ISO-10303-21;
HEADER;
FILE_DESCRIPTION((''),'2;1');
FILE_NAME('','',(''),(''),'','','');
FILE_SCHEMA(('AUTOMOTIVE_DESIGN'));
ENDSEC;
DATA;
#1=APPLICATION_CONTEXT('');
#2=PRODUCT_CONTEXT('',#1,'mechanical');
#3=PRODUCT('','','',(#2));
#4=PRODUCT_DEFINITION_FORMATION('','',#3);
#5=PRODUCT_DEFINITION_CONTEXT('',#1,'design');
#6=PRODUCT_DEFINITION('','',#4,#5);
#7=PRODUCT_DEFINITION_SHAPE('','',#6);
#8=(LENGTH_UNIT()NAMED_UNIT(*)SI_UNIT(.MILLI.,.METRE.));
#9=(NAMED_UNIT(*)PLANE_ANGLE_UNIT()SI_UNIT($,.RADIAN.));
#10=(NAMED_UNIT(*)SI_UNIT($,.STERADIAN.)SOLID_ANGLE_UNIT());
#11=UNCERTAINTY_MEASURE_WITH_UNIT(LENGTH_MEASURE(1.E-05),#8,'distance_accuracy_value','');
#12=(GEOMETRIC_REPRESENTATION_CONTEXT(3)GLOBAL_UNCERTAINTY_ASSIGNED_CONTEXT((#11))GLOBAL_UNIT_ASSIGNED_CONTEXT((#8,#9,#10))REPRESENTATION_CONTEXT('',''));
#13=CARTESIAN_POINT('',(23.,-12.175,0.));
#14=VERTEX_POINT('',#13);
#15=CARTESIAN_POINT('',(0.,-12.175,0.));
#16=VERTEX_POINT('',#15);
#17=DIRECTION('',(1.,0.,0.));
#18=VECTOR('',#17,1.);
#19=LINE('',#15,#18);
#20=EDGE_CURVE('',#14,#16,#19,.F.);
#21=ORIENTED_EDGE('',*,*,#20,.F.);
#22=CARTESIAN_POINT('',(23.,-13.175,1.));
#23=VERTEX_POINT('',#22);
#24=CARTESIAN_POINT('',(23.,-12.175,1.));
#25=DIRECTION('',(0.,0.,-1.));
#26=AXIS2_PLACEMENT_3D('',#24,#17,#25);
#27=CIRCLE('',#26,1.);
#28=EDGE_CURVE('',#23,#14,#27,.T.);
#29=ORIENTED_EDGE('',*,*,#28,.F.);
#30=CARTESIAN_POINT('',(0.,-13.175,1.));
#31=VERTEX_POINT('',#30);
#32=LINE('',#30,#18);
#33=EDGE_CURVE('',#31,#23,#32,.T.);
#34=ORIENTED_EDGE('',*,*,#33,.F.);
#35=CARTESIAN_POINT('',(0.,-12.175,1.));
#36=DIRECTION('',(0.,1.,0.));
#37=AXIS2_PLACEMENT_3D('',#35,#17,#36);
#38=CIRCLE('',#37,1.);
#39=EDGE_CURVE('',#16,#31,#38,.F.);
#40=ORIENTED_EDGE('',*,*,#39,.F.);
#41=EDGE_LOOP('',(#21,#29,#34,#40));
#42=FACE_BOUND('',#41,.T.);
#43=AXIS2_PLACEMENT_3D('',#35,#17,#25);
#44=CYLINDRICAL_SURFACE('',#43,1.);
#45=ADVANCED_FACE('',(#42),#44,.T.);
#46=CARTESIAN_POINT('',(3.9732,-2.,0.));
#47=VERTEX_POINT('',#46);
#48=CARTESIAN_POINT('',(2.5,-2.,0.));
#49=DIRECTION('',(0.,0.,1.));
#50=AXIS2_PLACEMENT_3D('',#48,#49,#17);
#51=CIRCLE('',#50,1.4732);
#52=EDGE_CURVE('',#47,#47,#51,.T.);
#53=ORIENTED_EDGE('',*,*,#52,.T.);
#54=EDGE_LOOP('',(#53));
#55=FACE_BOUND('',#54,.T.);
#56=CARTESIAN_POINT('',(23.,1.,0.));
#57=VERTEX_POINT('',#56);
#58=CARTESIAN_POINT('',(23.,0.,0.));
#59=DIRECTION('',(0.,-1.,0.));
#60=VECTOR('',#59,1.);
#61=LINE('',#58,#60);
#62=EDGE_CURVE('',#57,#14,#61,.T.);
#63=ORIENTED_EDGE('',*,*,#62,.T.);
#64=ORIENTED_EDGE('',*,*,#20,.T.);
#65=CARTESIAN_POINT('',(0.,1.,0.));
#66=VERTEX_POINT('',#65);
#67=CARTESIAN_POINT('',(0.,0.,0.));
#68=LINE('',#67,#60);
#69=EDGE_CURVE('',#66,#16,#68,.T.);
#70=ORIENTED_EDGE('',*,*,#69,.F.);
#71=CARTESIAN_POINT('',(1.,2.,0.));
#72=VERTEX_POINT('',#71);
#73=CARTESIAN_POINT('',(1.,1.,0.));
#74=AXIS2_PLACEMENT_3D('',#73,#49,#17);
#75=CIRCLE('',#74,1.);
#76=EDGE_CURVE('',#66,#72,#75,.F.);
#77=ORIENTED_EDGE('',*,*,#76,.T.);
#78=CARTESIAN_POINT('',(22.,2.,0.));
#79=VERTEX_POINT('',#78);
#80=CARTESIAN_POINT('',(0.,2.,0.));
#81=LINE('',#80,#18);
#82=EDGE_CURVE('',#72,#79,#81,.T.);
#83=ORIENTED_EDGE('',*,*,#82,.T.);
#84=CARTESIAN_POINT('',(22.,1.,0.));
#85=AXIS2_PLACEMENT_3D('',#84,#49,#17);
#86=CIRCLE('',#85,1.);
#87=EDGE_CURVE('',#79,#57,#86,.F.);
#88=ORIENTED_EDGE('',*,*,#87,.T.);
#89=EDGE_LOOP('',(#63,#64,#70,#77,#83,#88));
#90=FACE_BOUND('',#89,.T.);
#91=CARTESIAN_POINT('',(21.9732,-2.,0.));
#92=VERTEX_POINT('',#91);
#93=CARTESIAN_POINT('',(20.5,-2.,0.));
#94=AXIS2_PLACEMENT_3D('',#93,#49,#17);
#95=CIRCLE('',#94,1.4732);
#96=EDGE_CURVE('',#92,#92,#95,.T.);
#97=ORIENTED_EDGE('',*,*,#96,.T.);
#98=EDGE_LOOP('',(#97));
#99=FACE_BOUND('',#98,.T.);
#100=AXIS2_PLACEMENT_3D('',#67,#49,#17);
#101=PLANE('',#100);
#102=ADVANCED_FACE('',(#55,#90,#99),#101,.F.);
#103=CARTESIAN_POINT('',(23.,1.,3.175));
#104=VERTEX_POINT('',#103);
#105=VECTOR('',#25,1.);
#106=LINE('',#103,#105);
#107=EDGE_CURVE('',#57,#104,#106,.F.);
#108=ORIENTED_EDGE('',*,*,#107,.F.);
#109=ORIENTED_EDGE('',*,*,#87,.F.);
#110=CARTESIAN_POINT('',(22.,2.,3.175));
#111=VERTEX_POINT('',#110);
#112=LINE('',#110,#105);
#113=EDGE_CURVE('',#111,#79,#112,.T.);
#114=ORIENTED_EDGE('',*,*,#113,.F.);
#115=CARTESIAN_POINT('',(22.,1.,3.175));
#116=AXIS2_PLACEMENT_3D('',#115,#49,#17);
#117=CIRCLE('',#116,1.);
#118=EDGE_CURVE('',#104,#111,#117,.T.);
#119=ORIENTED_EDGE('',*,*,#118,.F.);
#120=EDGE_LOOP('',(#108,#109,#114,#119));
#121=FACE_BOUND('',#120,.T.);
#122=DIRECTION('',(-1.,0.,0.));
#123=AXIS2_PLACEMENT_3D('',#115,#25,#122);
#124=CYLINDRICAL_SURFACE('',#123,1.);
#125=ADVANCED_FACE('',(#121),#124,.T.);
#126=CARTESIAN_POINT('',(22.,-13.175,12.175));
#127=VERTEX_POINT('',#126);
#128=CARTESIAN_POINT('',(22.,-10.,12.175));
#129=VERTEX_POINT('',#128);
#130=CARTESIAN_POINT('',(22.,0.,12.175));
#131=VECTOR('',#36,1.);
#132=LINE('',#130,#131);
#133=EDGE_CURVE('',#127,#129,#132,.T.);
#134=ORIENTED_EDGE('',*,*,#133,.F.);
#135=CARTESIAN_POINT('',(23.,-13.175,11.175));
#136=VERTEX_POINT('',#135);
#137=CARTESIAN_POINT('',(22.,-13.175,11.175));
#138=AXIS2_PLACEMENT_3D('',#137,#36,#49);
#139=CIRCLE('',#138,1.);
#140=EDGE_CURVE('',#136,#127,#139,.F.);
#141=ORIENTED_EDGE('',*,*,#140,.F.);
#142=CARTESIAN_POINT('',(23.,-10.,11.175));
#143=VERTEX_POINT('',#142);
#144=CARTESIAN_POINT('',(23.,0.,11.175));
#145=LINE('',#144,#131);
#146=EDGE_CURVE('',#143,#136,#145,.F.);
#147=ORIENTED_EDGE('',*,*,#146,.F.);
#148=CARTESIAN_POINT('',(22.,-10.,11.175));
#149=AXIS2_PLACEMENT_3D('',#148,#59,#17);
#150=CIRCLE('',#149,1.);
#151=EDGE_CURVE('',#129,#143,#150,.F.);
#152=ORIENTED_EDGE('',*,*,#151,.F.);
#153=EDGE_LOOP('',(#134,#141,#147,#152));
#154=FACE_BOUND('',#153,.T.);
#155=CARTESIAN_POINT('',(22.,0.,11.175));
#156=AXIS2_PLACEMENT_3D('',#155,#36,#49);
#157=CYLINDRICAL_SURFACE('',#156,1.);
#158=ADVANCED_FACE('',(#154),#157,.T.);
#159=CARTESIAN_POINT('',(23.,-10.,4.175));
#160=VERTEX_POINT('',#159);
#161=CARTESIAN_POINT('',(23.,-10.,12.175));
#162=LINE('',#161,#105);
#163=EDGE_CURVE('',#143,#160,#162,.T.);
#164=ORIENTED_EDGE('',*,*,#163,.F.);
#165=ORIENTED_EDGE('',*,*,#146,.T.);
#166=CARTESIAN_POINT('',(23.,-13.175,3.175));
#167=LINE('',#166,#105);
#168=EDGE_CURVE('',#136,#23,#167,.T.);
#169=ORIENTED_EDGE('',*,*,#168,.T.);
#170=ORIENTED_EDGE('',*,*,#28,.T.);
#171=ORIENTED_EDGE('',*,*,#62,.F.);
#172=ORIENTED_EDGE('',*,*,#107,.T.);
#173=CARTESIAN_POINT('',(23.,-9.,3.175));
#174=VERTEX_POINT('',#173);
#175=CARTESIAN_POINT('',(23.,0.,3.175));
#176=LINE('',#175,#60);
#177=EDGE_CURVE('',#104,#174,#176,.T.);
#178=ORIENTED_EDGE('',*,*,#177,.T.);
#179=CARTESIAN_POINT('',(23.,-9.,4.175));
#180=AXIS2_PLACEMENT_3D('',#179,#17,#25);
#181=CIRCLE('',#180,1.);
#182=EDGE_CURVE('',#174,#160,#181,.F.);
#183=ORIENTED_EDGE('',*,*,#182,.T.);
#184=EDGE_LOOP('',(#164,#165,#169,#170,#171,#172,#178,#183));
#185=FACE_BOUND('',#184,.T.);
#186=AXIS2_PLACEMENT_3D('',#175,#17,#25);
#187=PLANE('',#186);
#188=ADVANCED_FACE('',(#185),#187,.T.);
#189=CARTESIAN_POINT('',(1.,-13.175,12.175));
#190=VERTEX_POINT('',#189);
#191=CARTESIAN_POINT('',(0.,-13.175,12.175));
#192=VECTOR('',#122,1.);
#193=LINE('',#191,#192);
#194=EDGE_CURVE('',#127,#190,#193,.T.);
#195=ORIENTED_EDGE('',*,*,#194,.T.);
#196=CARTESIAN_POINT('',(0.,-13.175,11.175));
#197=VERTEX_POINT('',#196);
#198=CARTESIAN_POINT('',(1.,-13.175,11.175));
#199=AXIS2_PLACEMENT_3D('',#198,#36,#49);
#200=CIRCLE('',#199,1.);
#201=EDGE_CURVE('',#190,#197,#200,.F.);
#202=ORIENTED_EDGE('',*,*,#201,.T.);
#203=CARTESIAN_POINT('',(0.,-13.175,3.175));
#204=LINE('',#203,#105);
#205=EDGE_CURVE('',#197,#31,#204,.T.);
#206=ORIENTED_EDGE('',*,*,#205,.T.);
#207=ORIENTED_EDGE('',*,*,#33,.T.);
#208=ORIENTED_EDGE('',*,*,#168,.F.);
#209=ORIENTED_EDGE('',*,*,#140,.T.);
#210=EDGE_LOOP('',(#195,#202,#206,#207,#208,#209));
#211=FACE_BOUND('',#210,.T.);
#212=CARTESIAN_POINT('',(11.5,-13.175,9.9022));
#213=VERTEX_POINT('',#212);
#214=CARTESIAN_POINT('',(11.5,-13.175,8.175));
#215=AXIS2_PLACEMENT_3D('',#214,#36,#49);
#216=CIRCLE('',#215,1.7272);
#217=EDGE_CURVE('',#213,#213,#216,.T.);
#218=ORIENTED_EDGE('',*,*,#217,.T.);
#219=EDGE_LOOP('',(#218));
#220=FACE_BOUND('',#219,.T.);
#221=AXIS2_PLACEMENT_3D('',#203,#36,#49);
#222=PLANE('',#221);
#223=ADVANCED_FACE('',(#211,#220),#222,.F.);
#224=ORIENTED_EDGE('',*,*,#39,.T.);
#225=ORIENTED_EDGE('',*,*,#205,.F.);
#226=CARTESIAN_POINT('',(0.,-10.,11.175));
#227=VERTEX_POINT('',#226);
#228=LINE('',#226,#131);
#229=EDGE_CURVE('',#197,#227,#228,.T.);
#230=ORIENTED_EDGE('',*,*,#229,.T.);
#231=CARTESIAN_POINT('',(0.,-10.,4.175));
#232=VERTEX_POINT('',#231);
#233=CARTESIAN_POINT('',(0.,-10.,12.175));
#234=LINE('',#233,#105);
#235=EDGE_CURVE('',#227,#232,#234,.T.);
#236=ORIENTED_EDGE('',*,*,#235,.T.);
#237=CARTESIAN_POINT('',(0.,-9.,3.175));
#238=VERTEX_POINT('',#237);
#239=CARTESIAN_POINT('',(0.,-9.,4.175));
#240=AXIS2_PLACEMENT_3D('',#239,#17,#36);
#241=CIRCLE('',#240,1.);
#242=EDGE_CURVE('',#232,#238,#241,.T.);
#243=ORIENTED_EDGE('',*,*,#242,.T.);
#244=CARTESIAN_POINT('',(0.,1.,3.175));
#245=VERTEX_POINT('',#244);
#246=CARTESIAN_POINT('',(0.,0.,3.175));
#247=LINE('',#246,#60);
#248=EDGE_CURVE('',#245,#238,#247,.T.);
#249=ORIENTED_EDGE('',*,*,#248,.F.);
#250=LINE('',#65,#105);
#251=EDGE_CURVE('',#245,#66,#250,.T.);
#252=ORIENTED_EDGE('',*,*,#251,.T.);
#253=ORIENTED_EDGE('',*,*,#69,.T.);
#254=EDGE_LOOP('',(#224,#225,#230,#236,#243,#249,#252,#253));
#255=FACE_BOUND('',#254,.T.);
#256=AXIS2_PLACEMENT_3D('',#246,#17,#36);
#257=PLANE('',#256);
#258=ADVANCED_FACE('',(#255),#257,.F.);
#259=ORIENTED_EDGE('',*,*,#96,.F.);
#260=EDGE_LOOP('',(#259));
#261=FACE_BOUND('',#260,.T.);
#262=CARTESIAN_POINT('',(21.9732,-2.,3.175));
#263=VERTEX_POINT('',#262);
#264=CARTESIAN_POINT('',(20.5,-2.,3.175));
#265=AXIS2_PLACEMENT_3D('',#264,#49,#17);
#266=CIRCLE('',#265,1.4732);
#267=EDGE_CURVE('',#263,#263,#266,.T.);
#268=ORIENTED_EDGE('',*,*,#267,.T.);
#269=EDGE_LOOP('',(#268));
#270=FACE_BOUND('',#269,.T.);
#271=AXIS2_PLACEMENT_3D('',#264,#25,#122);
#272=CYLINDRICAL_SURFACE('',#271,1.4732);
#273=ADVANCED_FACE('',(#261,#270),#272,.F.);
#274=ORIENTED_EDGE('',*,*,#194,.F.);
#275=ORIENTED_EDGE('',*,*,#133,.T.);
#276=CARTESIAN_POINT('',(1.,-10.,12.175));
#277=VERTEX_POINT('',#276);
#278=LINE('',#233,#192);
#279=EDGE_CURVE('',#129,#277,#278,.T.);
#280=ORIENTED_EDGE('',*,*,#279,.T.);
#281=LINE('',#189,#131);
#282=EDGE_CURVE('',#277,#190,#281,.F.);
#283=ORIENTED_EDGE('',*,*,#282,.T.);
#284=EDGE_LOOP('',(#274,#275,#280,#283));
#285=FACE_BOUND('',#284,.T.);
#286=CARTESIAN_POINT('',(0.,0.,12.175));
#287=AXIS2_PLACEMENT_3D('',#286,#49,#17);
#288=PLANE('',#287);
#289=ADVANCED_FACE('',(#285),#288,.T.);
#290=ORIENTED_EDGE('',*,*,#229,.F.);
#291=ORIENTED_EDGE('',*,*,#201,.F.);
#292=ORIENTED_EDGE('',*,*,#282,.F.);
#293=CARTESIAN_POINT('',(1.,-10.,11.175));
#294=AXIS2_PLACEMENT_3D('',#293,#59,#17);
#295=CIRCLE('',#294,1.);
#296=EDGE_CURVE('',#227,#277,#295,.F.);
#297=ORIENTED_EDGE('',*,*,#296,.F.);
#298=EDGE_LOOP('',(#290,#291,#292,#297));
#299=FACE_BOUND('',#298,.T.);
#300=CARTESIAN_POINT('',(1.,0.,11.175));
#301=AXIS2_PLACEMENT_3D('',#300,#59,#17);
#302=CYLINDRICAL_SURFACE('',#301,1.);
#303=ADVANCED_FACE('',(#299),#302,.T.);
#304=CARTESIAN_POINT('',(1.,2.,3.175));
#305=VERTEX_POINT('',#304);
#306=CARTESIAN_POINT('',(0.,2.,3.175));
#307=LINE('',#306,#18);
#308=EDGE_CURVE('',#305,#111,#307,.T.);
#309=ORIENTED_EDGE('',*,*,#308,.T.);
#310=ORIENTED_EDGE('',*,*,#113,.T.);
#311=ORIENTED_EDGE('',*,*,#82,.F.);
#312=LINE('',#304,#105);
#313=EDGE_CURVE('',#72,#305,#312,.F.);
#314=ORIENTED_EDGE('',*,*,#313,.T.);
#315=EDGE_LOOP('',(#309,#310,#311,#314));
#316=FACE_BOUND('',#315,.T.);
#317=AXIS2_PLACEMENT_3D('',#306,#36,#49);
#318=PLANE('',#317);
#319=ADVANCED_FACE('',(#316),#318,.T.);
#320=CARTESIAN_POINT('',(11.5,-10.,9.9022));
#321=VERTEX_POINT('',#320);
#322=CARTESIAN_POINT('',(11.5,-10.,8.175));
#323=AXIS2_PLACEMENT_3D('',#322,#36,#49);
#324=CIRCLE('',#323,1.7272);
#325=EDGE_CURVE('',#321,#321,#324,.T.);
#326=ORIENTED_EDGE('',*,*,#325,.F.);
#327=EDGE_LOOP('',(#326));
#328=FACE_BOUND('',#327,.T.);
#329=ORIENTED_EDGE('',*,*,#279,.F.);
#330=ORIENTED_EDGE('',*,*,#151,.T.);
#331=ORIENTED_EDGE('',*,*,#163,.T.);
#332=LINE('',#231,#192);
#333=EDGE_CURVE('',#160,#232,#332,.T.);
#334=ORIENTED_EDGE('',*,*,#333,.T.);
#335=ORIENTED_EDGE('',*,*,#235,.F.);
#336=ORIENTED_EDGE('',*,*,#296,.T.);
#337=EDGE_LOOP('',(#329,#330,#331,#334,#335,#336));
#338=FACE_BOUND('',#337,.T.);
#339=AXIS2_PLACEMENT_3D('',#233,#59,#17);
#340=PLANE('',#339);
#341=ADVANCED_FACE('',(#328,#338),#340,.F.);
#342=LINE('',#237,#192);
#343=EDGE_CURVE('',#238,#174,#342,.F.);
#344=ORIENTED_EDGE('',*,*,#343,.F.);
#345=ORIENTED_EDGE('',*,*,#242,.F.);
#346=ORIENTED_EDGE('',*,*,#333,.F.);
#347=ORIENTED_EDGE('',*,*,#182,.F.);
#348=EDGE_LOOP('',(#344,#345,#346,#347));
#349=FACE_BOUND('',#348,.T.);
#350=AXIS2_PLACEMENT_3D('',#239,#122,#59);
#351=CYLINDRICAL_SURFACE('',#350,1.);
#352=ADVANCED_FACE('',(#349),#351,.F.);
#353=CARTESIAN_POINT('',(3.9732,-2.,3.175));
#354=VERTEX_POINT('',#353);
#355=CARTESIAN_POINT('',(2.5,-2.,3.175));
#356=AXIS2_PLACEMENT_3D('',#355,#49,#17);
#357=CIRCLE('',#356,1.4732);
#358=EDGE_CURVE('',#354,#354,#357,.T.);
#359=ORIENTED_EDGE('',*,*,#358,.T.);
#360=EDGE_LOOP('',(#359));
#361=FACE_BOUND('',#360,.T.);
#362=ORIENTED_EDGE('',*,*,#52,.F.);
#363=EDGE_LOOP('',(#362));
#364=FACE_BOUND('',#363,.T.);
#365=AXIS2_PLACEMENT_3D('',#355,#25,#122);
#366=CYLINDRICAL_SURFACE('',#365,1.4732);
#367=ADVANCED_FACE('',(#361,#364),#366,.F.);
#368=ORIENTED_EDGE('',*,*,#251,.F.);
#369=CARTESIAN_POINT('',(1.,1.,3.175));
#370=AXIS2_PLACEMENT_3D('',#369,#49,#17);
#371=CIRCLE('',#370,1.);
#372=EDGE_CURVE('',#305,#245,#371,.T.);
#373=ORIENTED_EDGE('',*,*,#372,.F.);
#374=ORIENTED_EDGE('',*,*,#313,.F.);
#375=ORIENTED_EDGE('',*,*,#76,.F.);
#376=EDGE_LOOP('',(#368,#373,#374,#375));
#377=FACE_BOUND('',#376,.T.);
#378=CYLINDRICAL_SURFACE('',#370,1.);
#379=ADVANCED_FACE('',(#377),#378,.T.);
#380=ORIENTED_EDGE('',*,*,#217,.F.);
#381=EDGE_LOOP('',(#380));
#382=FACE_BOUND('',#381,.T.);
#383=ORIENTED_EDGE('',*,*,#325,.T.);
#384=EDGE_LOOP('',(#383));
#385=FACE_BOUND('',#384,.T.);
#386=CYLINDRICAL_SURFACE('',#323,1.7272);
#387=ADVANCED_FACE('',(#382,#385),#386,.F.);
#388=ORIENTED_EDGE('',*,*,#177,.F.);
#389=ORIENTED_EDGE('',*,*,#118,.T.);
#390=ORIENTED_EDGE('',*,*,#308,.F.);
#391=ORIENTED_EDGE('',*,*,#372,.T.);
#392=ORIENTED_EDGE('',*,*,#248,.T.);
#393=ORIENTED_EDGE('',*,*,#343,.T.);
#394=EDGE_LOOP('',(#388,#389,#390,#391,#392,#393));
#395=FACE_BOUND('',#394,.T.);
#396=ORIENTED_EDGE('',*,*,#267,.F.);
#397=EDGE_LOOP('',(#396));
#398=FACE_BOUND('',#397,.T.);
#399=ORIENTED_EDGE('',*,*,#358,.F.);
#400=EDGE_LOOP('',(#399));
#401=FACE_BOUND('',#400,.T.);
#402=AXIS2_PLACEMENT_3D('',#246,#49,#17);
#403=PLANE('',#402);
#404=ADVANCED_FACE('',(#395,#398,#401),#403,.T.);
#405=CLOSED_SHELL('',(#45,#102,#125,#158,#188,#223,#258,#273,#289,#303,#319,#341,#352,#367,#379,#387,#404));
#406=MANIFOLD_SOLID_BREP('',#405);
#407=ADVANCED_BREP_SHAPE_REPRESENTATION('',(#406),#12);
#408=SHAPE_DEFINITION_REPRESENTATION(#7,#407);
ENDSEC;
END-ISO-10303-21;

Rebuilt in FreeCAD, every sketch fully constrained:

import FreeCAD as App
import Part
import Sketcher
Q = App.Units.Quantity


def edges_at(feature, points):
    """Names of the edges that pass closest to the given points."""
    edges = feature.Shape.Edges
    near = lambda p: min(range(len(edges)), key=lambda i: edges[i].distToShape(Part.Vertex(*p))[0])
    return sorted({f"Edge{near(p) + 1}" for p in points})

doc = App.newDocument("Part")
params = doc.addObject("Spreadsheet::Sheet", "Params")
for row, (alias, value) in enumerate([
    ("sketch1_width", "23 mm"),
    ("pad1_length", "3.175 mm"),
    ("sketch2_width", "23 mm"),
    ("pad2_length", "9 mm"),
    ("hole_diameter", "3.4544 mm"),
    ("fillet_radius", "1 mm"),
], start=1):
    params.set(f"A{row}", alias)
    params.set(f"B{row}", "=" + value)
    params.setAlias(f"B{row}", alias)

body = doc.addObject("PartDesign::Body", "Body")

sketch1 = body.newObject("Sketcher::SketchObject", "Sketch")
sketch1.AttachmentSupport = (doc.getObject("XY_Plane"), [""])
sketch1.MapMode = "FlatFace"
sketch1.addGeometry(Part.LineSegment(App.Vector(0, -13.175, 0), App.Vector(23, -13.175, 0)), False)
sketch1.addGeometry(Part.LineSegment(App.Vector(23, -13.175, 0), App.Vector(23, 2, 0)), False)
sketch1.addGeometry(Part.LineSegment(App.Vector(23, 2, 0), App.Vector(0, 2, 0)), False)
sketch1.addGeometry(Part.LineSegment(App.Vector(0, 2, 0), App.Vector(0, -13.175, 0)), False)
sketch1.addGeometry(Part.Circle(App.Vector(2.5, -2, 0), App.Vector(0, 0, 1), 1.4732), False)
sketch1.addGeometry(Part.Circle(App.Vector(20.5, -2, 0), App.Vector(0, 0, 1), 1.4732), False)
sketch1.addConstraint(Sketcher.Constraint("Coincident", 0, 2, 1, 1))
sketch1.addConstraint(Sketcher.Constraint("Coincident", 1, 2, 2, 1))
sketch1.addConstraint(Sketcher.Constraint("Coincident", 2, 2, 3, 1))
sketch1.addConstraint(Sketcher.Constraint("Coincident", 3, 2, 0, 1))
sketch1.addConstraint(Sketcher.Constraint("Horizontal", 0))
sketch1.addConstraint(Sketcher.Constraint("Vertical", 1))
sketch1.addConstraint(Sketcher.Constraint("Horizontal", 2))
sketch1.addConstraint(Sketcher.Constraint("Vertical", 3))
sketch1.addConstraint(Sketcher.Constraint("Equal", 4, 5))
sketch1.addConstraint(Sketcher.Constraint("PointOnObject", 2, 2, -2))
sketch1.addConstraint(Sketcher.Constraint("Horizontal", 4, 3, 5, 3))
sketch1.addConstraint(Sketcher.Constraint("DistanceX", 0, 1, 0, 2, Q("23 mm")))
sketch1.addConstraint(Sketcher.Constraint("DistanceY", 4, 3, -1, 1, Q("2 mm")))
sketch1.addConstraint(Sketcher.Constraint("DistanceY", -1, 1, 1, 2, Q("2 mm")))
sketch1.addConstraint(Sketcher.Constraint("DistanceX", 4, 3, 5, 3, Q("18 mm")))
sketch1.addConstraint(Sketcher.Constraint("Diameter", 4, Q("2.9464 mm")))
sketch1.addConstraint(Sketcher.Constraint("DistanceX", -1, 1, 4, 3, Q("2.5 mm")))
sketch1.addConstraint(Sketcher.Constraint("DistanceY", 1, 1, 1, 2, Q("15.175 mm")))
sketch1.setExpression("Constraints[11]", "Params.sketch1_width")
pad1 = body.newObject("PartDesign::Pad", "Pad")
pad1.Profile = sketch1
pad1.setExpression("Length", "Params.pad1_length")

sketch2 = body.newObject("Sketcher::SketchObject", "Sketch001")
sketch2.AttachmentSupport = (doc.getObject("XY_Plane"), [""])
sketch2.MapMode = "FlatFace"
sketch2.AttachmentOffset = App.Placement(App.Vector(0, 0, 3.175), App.Rotation())
sketch2.addGeometry(Part.LineSegment(App.Vector(0, -10, 0), App.Vector(0, -13.175, 0)), False)
sketch2.addGeometry(Part.LineSegment(App.Vector(0, -13.175, 0), App.Vector(23, -13.175, 0)), False)
sketch2.addGeometry(Part.LineSegment(App.Vector(23, -13.175, 0), App.Vector(23, -10, 0)), False)
sketch2.addGeometry(Part.LineSegment(App.Vector(23, -10, 0), App.Vector(0, -10, 0)), False)
sketch2.addConstraint(Sketcher.Constraint("Coincident", 0, 2, 1, 1))
sketch2.addConstraint(Sketcher.Constraint("Coincident", 1, 2, 2, 1))
sketch2.addConstraint(Sketcher.Constraint("Coincident", 2, 2, 3, 1))
sketch2.addConstraint(Sketcher.Constraint("Coincident", 3, 2, 0, 1))
sketch2.addConstraint(Sketcher.Constraint("Vertical", 0))
sketch2.addConstraint(Sketcher.Constraint("Horizontal", 1))
sketch2.addConstraint(Sketcher.Constraint("Vertical", 2))
sketch2.addConstraint(Sketcher.Constraint("Horizontal", 3))
sketch2.addConstraint(Sketcher.Constraint("PointOnObject", 0, 2, -2))
sketch2.addConstraint(Sketcher.Constraint("DistanceX", 1, 1, 1, 2, Q("23 mm")))
sketch2.addConstraint(Sketcher.Constraint("DistanceY", 2, 2, -1, 1, Q("10 mm")))
sketch2.addConstraint(Sketcher.Constraint("DistanceY", 0, 2, 0, 1, Q("3.175 mm")))
sketch2.setExpression("Constraints[9]", "Params.sketch2_width")
pad2 = body.newObject("PartDesign::Pad", "Pad001")
pad2.Profile = sketch2
pad2.setExpression("Length", "Params.pad2_length")

sketch3 = body.newObject("Sketcher::SketchObject", "Sketch002")
sketch3.AttachmentSupport = (doc.getObject("XZ_Plane"), [""])
sketch3.MapMode = "FlatFace"
sketch3.AttachmentOffset = App.Placement(App.Vector(0, 0, 10), App.Rotation())
sketch3.addGeometry(Part.Circle(App.Vector(11.5, 8.175, 0), App.Vector(0, 0, 1), 1.7272), False)
sketch3.addConstraint(Sketcher.Constraint("Diameter", 0, Q("3.4544 mm")))
sketch3.addConstraint(Sketcher.Constraint("DistanceX", -1, 1, 0, 3, Q("11.5 mm")))
sketch3.addConstraint(Sketcher.Constraint("DistanceY", -1, 1, 0, 3, Q("8.175 mm")))
doc.recompute()
hole = body.newObject("PartDesign::Hole", "Hole")
hole.Profile = sketch3
hole.ThreadType = "None"
hole.setExpression("Diameter", "Params.hole_diameter")
hole.DepthType = "ThroughAll"
hole.Reversed = True
doc.recompute()

fillet = body.newObject("PartDesign::Fillet", "Fillet")
fillet.Base = (hole, edges_at(hole, [
    (0, 2, 1.587),
    (23, 2, 1.587),
    (0, -11.588, 12.175),
    (11.5, -10, 3.175),
    (23, -11.588, 12.175),
    (11.5, -13.175, 0),
]))
fillet.setExpression("Radius", "Params.fillet_radius")

doc.recompute()
